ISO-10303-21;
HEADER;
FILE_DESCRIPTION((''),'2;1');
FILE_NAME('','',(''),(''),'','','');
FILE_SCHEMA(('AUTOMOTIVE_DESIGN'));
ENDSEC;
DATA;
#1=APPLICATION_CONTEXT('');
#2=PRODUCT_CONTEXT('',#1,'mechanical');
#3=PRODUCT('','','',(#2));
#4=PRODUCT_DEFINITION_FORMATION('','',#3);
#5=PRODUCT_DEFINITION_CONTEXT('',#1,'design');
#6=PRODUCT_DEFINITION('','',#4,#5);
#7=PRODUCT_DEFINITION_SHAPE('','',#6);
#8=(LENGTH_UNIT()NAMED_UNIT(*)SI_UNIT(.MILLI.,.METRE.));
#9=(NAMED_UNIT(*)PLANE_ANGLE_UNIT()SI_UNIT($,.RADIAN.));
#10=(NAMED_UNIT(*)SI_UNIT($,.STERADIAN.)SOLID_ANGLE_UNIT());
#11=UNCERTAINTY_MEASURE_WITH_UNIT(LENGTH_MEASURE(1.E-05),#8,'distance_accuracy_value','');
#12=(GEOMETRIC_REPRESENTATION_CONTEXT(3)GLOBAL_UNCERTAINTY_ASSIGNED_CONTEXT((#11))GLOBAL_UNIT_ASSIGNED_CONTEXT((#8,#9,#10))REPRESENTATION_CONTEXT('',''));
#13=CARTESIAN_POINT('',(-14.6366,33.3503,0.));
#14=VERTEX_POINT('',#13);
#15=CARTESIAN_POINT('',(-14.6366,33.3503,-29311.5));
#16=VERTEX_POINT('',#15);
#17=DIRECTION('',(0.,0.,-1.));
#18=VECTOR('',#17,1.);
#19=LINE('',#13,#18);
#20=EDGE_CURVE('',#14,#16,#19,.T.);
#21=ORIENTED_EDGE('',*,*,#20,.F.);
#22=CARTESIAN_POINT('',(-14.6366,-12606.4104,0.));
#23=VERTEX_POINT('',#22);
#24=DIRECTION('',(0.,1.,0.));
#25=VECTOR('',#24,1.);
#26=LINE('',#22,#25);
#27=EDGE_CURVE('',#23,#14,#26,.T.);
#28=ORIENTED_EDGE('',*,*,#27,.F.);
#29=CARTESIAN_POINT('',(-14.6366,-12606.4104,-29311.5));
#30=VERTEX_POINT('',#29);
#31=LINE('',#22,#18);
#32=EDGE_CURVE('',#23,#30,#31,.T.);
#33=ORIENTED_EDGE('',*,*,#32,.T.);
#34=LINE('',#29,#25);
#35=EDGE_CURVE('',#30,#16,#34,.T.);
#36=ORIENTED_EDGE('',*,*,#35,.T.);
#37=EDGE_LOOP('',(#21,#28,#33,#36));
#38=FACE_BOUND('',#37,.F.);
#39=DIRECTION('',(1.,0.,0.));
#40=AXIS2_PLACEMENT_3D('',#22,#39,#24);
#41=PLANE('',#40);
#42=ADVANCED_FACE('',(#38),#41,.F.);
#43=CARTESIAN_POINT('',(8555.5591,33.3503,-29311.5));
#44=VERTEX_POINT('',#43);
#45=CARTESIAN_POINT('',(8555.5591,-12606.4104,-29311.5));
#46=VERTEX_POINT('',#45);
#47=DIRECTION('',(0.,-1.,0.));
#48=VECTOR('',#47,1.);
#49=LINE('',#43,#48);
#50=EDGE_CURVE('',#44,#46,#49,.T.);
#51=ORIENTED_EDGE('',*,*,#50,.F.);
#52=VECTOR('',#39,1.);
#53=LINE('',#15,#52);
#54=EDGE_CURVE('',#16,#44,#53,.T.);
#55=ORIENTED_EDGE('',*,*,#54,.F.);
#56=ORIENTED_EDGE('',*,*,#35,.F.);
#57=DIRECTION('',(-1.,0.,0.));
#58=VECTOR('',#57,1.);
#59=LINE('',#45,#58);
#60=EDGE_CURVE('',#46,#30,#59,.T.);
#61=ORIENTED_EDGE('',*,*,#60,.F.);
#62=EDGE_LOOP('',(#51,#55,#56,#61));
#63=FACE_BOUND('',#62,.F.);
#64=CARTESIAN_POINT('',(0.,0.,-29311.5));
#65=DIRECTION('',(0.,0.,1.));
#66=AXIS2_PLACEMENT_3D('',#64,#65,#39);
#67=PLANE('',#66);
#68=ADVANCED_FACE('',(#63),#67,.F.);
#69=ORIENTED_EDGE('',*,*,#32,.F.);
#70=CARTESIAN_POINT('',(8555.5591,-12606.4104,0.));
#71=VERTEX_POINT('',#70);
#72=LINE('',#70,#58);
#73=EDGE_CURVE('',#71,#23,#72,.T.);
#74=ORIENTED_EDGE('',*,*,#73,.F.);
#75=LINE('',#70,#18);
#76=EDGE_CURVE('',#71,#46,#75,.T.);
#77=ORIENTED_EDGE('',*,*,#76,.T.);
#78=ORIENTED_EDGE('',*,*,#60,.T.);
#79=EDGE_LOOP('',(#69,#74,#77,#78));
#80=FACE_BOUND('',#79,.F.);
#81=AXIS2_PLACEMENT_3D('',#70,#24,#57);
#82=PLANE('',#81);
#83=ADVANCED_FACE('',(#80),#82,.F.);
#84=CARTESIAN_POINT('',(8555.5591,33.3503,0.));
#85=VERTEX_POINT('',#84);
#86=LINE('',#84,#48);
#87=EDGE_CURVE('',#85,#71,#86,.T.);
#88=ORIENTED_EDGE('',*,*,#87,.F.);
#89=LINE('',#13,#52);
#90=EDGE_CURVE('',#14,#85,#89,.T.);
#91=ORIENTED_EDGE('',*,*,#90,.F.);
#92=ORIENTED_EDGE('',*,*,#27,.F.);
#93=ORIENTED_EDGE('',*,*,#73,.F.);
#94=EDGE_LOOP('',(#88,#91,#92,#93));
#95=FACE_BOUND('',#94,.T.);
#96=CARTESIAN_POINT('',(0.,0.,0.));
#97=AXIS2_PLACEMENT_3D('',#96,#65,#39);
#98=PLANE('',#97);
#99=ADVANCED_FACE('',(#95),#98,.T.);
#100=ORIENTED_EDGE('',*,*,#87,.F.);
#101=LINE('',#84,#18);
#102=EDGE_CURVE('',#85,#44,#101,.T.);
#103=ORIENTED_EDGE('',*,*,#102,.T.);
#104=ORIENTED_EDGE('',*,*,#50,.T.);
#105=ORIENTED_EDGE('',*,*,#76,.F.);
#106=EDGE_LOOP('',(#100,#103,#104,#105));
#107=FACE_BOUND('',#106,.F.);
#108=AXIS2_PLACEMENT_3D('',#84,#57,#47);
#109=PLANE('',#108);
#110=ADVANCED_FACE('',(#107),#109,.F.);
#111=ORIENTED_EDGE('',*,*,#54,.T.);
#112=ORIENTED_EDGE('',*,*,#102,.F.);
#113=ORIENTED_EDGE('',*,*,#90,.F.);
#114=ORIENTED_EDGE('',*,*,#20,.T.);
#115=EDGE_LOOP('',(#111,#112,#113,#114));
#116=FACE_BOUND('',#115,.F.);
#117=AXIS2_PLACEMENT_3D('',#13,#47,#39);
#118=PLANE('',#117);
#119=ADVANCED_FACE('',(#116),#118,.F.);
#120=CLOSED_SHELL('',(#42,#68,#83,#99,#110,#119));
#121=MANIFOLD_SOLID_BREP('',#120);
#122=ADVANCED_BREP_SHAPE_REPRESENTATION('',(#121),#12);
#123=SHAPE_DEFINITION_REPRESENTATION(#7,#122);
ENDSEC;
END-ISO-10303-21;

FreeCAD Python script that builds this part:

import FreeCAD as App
import Part
import Sketcher
from FreeCAD import Vector

doc = App.newDocument("Part")
body = doc.addObject("PartDesign::Body", "Body")

# Sketch on XY plane
sketch1 = body.newObject("Sketcher::SketchObject", "Sketch")
sketch1.AttachmentSupport = (doc.getObject("XY_Plane"), [""])
sketch1.MapMode = "FlatFace"
sketch1.addGeometry([
    Part.LineSegment(Vector(8556, 33, 0), Vector(-15, 33, 0)),
    Part.LineSegment(Vector(-15, 33, 0), Vector(-15, -12606, 0)),
    Part.LineSegment(Vector(-15, -12606, 0), Vector(8556, -12606, 0)),
    Part.LineSegment(Vector(8556, -12606, 0), Vector(8556, 33, 0)),
], False)
sketch1.addConstraint([
    Sketcher.Constraint("Coincident", 0, 2, 1, 1),
    Sketcher.Constraint("Coincident", 1, 2, 2, 1),
    Sketcher.Constraint("Coincident", 2, 2, 3, 1),
    Sketcher.Constraint("Coincident", 3, 2, 0, 1),
    Sketcher.Constraint("Horizontal", 0),
    Sketcher.Constraint("Vertical", 1),
    Sketcher.Constraint("Horizontal", 2),
    Sketcher.Constraint("Vertical", 3),
    Sketcher.Constraint("DistanceX", 0, 2, 0, 1, 8570.1957),
    Sketcher.Constraint("DistanceY", 1, 2, 1, 1, 12639.7607),
    Sketcher.Constraint("DistanceX", -1, 1, 2, 2, 8555.559),
    Sketcher.Constraint("DistanceY", -1, 1, 0, 2, 33.3503),
])
pad1 = body.newObject("PartDesign::Pad", "Pad")
pad1.Profile = sketch1
pad1.Length = 29311.5
pad1.Reversed = True

doc.recompute()
